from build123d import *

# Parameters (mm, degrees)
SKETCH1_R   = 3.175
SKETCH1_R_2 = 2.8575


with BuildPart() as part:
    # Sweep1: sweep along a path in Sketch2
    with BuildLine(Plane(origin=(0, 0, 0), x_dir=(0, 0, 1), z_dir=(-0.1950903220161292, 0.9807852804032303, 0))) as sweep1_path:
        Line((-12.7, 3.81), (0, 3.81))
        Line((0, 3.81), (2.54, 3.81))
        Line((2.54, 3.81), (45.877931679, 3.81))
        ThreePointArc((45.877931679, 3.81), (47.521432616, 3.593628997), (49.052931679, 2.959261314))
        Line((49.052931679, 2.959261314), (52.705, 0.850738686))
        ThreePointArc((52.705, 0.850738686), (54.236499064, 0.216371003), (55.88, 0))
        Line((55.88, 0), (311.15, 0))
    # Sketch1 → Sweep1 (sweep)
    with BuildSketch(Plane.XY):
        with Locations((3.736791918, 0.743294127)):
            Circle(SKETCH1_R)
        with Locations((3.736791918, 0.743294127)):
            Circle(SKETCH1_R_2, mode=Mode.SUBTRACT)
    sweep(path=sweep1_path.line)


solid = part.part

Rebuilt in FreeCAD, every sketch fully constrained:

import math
import FreeCAD as App
import Part
import Sketcher

V = App.Vector
Q = App.Units.Quantity

doc = App.newDocument("Part")
body = doc.addObject("PartDesign::Body", "Body")

sketch1 = body.newObject("Sketcher::SketchObject", "Sketch")
sketch1.AttachmentSupport = (doc.getObject("XY_Plane"), [""])
sketch1.MapMode = "FlatFace"
sketch1.addGeometry([
    Part.Circle(V(3.7, 0.7, 0), V(0, 0, 1), 3.2),
    Part.Circle(V(3.7, 0.7, 0), V(0, 0, 1), 2.9),
], False)
sketch1.addConstraint([
    Sketcher.Constraint("Coincident", 1, 3, 0, 3),
    Sketcher.Constraint("Diameter", 0, Q("0.25 in")),
    Sketcher.Constraint("Diameter", 1, Q("0.225 in")),
    Sketcher.Constraint("DistanceX", -1, 1, 0, 3, Q("3.736792 mm")),
    Sketcher.Constraint("DistanceY", -1, 1, 0, 3, Q("0.743294 mm")),
])

sketch2 = body.newObject("Sketcher::SketchObject", "Sketch001")
sketch2.Placement = App.Placement(V(0, 0, 0), App.Rotation(V(0.98078528, 0.195090322, 0), V(0, 0, 0.999999999), V(0.195090322, -0.98078528, 0), "ZXY"))
sketch2.addGeometry([
    Part.LineSegment(V(3.8, -12.7, 0), V(3.8, 45.9, 0)),
    Part.ArcOfCircle(Part.Circle(V(-2.5, 45.9, 0), V(0, 0, 1), 6.3), math.radians(0), math.radians(30)),
    Part.LineSegment(V(3, 49.1, 0), V(0.9, 52.7, 0)),
    Part.ArcOfCircle(Part.Circle(V(6.3, 55.9, 0), V(0, 0, 1), 6.4), math.radians(180), math.radians(210)),
    Part.LineSegment(V(0, 55.9, 0), V(0, 311.1, 0)),
], False)
sketch2.addConstraint([
    Sketcher.Constraint("Tangent", 0, 2, 1, 1),
    Sketcher.Constraint("Tangent", 1, 2, 2, 1),
    Sketcher.Constraint("Tangent", 2, 2, 3, 2),
    Sketcher.Constraint("Tangent", 3, 1, 4, 1),
    Sketcher.Constraint("Vertical", 0),
    Sketcher.Constraint("Vertical", 4),
    Sketcher.Constraint("Equal", 1, 3),
    Sketcher.Constraint("PointOnObject", 3, 1, -2),
    Sketcher.Constraint("Radius", 1, Q("0.25 in")),
    Sketcher.Constraint("Angle", 2, Q("120 deg")),
    Sketcher.Constraint("DistanceY", 4, 1, 4, 2, Q("10.05 in")),
    Sketcher.Constraint("DistanceX", 1, 3, -1, 1, Q("0.1 in")),
    Sketcher.Constraint("DistanceY", -1, 1, 3, 3, Q("2.2 in")),
    Sketcher.Constraint("DistanceY", 0, 1, -1, 1, Q("0.5 in")),
])
doc.recompute()

additivepipe = body.newObject("PartDesign::AdditivePipe", "AdditivePipe")
additivepipe.Profile = sketch1
additivepipe.Spine = (sketch2, ["Edge1", "Edge2", "Edge3", "Edge4", "Edge5"])

doc.recompute()
